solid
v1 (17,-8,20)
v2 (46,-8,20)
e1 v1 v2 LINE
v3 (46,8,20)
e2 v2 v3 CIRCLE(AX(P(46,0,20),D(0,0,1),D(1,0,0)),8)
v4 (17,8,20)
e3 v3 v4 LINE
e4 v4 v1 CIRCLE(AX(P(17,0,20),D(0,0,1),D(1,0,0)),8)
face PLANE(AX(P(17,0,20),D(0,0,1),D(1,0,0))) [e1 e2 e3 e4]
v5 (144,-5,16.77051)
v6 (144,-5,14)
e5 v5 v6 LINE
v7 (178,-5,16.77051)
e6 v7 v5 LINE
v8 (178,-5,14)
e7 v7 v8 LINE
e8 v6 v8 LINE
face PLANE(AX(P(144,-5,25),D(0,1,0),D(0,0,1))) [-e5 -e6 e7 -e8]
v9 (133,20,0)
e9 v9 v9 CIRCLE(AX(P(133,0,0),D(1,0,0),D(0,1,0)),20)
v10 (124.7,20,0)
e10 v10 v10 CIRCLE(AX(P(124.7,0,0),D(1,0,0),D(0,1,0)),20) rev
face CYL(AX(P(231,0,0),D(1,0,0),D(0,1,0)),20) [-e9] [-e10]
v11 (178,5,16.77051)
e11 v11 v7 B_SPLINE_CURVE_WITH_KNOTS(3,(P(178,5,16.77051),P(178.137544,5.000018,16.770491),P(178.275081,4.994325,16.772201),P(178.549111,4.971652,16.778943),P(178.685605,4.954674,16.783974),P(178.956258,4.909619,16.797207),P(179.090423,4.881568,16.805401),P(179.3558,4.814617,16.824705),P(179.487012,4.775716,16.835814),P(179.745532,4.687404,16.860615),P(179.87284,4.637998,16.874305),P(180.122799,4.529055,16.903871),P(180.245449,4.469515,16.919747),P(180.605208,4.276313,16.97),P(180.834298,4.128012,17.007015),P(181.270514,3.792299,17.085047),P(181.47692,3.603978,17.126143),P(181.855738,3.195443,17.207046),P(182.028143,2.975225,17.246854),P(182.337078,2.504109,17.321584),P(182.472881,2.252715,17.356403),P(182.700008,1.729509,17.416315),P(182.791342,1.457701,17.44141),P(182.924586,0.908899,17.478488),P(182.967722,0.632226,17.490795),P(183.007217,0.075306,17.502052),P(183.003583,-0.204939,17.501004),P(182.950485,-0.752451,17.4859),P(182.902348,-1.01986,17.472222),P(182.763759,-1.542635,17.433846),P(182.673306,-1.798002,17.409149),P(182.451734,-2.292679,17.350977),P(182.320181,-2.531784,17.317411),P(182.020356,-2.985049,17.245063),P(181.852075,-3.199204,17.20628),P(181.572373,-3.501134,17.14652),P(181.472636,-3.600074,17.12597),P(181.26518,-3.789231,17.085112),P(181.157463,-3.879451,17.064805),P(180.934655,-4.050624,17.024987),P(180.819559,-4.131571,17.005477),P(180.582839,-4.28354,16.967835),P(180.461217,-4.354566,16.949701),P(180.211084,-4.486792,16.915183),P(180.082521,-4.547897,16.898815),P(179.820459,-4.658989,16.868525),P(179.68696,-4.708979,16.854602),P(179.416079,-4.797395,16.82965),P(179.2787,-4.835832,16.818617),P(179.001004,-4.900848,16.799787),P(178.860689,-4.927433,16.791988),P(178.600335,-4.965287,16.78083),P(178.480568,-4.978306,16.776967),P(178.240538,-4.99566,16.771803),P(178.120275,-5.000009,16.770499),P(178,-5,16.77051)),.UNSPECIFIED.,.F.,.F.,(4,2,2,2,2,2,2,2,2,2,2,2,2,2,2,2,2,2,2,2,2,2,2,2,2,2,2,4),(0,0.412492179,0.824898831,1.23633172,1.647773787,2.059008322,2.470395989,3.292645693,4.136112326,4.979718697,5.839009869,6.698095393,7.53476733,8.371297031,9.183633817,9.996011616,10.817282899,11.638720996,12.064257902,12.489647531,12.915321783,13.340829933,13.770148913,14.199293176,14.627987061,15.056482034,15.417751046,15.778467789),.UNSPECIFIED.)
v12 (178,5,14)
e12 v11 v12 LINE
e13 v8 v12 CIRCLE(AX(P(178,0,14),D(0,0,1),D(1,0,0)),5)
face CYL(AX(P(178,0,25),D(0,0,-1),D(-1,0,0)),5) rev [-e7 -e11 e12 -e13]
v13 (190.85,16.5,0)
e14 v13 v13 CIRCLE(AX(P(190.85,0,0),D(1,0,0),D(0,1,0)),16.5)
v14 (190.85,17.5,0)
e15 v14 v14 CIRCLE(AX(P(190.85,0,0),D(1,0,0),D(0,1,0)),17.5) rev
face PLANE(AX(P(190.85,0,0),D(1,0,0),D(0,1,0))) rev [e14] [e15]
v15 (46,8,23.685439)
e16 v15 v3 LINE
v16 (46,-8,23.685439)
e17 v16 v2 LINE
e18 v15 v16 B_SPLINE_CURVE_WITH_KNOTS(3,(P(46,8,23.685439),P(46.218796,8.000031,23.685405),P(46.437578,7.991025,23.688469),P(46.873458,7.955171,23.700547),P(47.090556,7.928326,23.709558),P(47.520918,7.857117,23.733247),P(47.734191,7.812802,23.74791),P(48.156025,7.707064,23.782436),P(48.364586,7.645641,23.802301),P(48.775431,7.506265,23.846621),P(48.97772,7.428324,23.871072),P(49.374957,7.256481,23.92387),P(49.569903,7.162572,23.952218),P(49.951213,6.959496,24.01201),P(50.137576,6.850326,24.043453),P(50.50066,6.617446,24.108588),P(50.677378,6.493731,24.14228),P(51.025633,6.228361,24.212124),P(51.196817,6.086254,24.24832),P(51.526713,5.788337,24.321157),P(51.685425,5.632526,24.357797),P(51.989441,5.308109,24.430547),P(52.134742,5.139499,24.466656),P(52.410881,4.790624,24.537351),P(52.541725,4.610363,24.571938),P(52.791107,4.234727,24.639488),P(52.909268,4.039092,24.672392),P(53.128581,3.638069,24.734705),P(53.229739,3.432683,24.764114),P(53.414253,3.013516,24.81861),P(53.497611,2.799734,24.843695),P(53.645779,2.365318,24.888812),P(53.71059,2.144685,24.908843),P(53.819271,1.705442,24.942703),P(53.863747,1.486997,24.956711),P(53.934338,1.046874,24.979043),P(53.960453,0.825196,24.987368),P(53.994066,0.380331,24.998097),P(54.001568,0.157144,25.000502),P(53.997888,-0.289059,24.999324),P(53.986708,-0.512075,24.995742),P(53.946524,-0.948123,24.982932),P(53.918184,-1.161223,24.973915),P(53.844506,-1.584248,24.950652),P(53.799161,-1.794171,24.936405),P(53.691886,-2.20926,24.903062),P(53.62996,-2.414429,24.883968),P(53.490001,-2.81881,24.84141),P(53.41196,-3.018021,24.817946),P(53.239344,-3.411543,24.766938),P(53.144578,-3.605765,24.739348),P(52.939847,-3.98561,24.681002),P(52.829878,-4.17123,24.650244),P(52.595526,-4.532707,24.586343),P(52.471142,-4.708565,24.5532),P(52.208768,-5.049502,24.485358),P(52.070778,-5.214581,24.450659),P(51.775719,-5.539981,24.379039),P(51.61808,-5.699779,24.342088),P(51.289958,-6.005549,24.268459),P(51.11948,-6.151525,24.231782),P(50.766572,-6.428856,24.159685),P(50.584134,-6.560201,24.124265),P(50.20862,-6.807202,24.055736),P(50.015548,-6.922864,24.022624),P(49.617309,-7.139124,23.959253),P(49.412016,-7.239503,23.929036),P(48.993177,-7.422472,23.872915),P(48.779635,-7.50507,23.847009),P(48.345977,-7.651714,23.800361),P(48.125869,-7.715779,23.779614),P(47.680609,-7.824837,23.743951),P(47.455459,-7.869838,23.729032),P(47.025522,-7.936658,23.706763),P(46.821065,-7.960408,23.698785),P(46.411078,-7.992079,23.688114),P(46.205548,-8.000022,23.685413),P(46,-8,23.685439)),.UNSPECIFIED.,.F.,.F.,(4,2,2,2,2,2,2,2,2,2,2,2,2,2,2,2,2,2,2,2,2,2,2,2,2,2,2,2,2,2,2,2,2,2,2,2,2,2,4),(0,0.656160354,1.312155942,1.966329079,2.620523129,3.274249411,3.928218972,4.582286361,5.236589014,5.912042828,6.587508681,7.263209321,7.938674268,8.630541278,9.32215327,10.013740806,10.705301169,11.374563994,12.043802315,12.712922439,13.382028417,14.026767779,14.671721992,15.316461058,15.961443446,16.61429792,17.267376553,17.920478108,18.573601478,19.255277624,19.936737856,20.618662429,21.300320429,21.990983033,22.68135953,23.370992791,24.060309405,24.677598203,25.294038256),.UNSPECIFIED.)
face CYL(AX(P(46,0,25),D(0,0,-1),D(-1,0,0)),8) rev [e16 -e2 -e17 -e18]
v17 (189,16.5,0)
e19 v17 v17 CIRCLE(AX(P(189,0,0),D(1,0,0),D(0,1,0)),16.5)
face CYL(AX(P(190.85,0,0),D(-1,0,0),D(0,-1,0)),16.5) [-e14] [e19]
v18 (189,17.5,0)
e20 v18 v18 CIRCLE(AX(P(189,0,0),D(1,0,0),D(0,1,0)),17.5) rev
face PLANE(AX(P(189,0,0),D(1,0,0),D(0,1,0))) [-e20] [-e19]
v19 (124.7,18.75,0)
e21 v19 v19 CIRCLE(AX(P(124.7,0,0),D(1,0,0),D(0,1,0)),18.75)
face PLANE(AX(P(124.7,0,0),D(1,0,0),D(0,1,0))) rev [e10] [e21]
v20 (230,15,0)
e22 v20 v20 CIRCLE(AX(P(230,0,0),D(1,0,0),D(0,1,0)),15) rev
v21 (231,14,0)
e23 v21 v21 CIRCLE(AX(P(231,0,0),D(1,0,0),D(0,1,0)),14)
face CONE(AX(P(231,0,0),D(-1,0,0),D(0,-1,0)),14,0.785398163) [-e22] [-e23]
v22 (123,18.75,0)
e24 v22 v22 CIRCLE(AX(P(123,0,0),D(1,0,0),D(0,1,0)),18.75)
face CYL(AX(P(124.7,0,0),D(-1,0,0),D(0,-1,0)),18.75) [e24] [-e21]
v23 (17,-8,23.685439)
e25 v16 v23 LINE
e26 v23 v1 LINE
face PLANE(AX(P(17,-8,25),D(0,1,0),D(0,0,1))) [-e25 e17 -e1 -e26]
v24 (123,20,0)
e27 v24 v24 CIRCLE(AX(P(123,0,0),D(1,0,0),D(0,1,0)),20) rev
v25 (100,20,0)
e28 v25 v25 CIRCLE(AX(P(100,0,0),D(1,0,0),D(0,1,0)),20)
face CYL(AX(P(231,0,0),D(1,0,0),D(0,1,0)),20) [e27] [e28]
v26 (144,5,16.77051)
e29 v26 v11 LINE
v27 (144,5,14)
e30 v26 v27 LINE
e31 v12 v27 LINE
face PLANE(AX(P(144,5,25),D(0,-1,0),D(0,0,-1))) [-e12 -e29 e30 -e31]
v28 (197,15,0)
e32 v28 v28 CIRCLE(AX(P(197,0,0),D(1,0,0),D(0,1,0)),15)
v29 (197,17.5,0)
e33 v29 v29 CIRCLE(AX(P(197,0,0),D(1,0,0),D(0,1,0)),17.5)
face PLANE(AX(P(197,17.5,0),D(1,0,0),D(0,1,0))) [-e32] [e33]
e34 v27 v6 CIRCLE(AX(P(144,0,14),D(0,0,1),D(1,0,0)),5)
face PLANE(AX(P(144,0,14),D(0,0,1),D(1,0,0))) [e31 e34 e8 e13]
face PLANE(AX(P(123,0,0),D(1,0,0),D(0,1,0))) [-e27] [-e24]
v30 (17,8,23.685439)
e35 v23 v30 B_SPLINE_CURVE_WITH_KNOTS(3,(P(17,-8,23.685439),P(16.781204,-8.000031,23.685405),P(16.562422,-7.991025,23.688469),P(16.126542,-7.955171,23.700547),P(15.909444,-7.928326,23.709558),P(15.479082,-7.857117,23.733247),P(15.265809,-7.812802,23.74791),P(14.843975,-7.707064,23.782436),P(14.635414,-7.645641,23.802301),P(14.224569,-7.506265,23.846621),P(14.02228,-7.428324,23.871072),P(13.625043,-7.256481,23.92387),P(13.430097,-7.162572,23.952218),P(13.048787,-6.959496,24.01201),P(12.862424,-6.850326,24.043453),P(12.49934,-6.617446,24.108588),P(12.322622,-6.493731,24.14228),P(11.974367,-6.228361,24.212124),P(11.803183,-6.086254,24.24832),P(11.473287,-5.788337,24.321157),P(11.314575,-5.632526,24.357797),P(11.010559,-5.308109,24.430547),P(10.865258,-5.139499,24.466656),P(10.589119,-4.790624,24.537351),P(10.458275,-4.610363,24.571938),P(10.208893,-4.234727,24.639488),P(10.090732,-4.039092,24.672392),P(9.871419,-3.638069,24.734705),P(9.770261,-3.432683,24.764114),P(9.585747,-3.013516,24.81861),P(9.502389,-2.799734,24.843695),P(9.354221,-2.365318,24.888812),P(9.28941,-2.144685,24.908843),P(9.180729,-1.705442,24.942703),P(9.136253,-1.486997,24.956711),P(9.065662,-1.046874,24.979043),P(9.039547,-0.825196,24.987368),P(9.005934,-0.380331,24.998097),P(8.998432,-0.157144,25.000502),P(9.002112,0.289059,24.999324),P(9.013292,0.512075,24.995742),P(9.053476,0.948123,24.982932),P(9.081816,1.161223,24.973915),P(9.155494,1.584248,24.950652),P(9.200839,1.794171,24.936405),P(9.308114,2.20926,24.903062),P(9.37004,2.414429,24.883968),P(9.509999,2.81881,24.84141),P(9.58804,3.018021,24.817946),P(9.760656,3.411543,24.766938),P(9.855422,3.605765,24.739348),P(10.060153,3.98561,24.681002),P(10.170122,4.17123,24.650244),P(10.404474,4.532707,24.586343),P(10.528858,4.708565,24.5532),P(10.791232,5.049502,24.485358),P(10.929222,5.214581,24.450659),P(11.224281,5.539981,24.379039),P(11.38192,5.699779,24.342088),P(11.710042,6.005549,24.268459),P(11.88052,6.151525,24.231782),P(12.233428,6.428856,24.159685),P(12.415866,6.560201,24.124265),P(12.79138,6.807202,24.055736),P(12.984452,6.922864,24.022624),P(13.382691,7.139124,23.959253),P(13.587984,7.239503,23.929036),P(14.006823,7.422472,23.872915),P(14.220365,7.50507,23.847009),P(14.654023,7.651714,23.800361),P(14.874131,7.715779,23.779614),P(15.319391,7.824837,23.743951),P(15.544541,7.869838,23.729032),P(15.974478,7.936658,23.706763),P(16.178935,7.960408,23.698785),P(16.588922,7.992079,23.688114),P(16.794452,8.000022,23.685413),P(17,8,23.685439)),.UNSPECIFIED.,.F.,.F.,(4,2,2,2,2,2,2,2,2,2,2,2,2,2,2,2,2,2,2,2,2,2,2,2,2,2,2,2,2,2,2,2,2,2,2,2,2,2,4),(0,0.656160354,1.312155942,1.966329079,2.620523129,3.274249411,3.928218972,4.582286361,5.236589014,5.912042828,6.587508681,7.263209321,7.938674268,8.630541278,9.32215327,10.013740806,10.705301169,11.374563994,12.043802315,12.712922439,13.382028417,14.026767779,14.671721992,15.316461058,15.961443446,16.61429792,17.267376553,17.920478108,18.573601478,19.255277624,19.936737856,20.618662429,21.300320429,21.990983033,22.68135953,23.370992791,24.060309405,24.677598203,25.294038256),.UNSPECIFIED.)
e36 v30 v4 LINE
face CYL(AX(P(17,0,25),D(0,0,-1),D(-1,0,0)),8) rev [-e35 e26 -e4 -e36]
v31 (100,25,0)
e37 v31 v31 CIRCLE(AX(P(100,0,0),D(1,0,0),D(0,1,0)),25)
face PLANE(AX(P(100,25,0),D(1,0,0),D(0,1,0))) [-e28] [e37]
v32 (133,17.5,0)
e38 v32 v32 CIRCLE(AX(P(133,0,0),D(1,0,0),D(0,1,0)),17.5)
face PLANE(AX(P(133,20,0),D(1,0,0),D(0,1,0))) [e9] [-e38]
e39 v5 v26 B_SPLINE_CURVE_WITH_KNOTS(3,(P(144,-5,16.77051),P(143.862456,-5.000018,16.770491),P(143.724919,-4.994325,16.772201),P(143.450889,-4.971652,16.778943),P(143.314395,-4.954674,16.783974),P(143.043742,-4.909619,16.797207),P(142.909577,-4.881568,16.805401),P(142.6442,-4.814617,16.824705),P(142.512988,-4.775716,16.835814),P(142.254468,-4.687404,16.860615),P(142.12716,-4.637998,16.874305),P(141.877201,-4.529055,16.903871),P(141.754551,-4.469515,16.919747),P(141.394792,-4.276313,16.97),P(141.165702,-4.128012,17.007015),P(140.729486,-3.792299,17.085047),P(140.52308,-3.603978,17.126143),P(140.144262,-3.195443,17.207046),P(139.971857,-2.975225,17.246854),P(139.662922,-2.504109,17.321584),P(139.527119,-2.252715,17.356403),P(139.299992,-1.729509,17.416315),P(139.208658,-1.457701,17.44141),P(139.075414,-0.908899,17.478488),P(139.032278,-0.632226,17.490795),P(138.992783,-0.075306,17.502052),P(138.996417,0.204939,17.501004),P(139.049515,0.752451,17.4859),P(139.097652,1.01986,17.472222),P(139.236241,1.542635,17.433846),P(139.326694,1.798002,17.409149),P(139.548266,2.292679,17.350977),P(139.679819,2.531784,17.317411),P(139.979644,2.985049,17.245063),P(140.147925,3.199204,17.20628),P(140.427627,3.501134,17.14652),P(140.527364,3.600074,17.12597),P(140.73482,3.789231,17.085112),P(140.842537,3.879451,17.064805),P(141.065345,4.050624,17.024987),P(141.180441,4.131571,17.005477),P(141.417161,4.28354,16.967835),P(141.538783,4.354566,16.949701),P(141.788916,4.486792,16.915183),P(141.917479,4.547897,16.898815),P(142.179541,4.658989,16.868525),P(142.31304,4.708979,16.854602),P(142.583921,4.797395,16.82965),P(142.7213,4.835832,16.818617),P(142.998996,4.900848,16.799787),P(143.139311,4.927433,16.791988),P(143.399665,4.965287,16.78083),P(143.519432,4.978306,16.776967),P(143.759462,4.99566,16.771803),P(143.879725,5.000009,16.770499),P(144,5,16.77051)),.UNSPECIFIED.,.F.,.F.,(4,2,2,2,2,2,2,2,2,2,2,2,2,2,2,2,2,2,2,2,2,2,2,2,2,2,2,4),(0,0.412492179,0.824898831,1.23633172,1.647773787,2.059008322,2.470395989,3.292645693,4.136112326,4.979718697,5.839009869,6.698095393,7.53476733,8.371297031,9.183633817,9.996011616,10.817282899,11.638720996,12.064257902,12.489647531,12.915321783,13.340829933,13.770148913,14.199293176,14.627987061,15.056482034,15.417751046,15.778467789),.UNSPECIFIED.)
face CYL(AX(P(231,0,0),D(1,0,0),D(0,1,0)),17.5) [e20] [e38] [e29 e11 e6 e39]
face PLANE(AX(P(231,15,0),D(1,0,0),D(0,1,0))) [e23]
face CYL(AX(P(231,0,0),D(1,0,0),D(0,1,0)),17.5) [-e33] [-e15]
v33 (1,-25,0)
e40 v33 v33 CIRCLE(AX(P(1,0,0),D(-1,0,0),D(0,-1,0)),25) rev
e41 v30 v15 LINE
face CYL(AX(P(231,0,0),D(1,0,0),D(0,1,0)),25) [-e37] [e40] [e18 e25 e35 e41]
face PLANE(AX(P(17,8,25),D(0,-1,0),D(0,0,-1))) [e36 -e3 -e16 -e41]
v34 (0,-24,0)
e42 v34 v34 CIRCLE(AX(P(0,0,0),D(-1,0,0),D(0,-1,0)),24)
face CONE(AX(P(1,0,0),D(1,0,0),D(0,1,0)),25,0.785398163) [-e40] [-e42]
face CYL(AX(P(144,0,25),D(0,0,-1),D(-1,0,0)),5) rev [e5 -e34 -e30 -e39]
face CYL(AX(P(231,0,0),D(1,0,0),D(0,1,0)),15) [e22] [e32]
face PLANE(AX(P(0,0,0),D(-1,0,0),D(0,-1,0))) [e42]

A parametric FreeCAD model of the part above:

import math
import FreeCAD as App
import Part
import Sketcher
from FreeCAD import Vector
Q = App.Units.Quantity


def edges_at(feature, points):
    """Names of the edges that pass closest to the given points."""
    edges = feature.Shape.Edges
    near = lambda p: min(range(len(edges)), key=lambda i: edges[i].distToShape(Part.Vertex(*p))[0])
    return sorted({f"Edge{near(p) + 1}" for p in points})

doc = App.newDocument("Part")
body = doc.addObject("PartDesign::Body", "Body")

sketch1 = body.newObject("Sketcher::SketchObject", "Sketch")
sketch1.AttachmentSupport = (doc.getObject("XY_Plane"), [""])
sketch1.MapMode = "FlatFace"
sketch1.addGeometry([
    Part.LineSegment(Vector(0, 25, 0), Vector(0, 0, 0)),
    Part.LineSegment(Vector(0, 0, 0), Vector(231, 0, 0)),
    Part.LineSegment(Vector(231, 0, 0), Vector(231, 15, 0)),
    Part.LineSegment(Vector(231, 15, 0), Vector(197, 15, 0)),
    Part.LineSegment(Vector(197, 15, 0), Vector(197, 17.5, 0)),
    Part.LineSegment(Vector(197, 17.5, 0), Vector(133, 17.5, 0)),
    Part.LineSegment(Vector(133, 17.5, 0), Vector(133, 20, 0)),
    Part.LineSegment(Vector(133, 20, 0), Vector(100, 20, 0)),
    Part.LineSegment(Vector(100, 20, 0), Vector(100, 25, 0)),
    Part.LineSegment(Vector(100, 25, 0), Vector(0, 25, 0)),
], False)
sketch1.addConstraint([
    Sketcher.Constraint("Coincident", 0, 2, 1, 1),
    Sketcher.Constraint("Coincident", 1, 2, 2, 1),
    Sketcher.Constraint("Coincident", 2, 2, 3, 1),
    Sketcher.Constraint("Coincident", 3, 2, 4, 1),
    Sketcher.Constraint("Coincident", 4, 2, 5, 1),
    Sketcher.Constraint("Coincident", 5, 2, 6, 1),
    Sketcher.Constraint("Coincident", 6, 2, 7, 1),
    Sketcher.Constraint("Coincident", 7, 2, 8, 1),
    Sketcher.Constraint("Coincident", 8, 2, 9, 1),
    Sketcher.Constraint("Coincident", 9, 2, 0, 1),
    Sketcher.Constraint("Vertical", 0),
    Sketcher.Constraint("Horizontal", 1),
    Sketcher.Constraint("Vertical", 2),
    Sketcher.Constraint("Horizontal", 3),
    Sketcher.Constraint("Vertical", 4),
    Sketcher.Constraint("Horizontal", 5),
    Sketcher.Constraint("Vertical", 6),
    Sketcher.Constraint("Horizontal", 7),
    Sketcher.Constraint("Vertical", 8),
    Sketcher.Constraint("Horizontal", 9),
    Sketcher.Constraint("Coincident", 0, 2, -1, 1),
    Sketcher.Constraint("Equal", 4, 6),
    Sketcher.Constraint("DistanceX", 1, 1, 1, 2, Q("231 mm")),
    Sketcher.Constraint("DistanceX", 3, 2, 3, 1, Q("34 mm")),
    Sketcher.Constraint("DistanceX", 5, 2, 5, 1, Q("64 mm")),
    Sketcher.Constraint("DistanceX", 7, 2, 7, 1, Q("33 mm")),
    Sketcher.Constraint("DistanceY", 0, 2, 0, 1, Q("25 mm")),
    Sketcher.Constraint("DistanceY", 2, 1, 2, 2, Q("15 mm")),
    Sketcher.Constraint("DistanceY", 8, 1, 8, 2, Q("5 mm")),
])
revolution = body.newObject("PartDesign::Revolution", "Revolution")
revolution.Profile = sketch1
revolution.ReferenceAxis = (sketch1, ["H_Axis"])
revolution.Angle = 360
doc.recompute()

chamfer = body.newObject("PartDesign::Chamfer", "Chamfer")
chamfer.Base = (revolution, edges_at(revolution, [(0, -25, 0), (231, -15, 0)]))
chamfer.Size = 1

sketch2 = body.newObject("Sketcher::SketchObject", "Sketch001")
sketch2.AttachmentSupport = (doc.getObject("YZ_Plane"), [""])
sketch2.MapMode = "FlatFace"
sketch2.AttachmentOffset = App.Placement(Vector(0, 0, 189), App.Rotation())
sketch2.addGeometry([
    Part.LineSegment(Vector(50.158, 50.158, 0), Vector(-50.158, 50.158, 0)),
    Part.LineSegment(Vector(-50.158, 50.158, 0), Vector(-50.158, -50.158, 0)),
    Part.LineSegment(Vector(-50.158, -50.158, 0), Vector(50.158, -50.158, 0)),
    Part.LineSegment(Vector(50.158, -50.158, 0), Vector(50.158, 50.158, 0)),
    Part.Circle(Vector(0, 0, 0), Vector(0, 0, 1), 16.5),
], False)
sketch2.addConstraint([
    Sketcher.Constraint("Coincident", 0, 2, 1, 1),
    Sketcher.Constraint("Coincident", 1, 2, 2, 1),
    Sketcher.Constraint("Coincident", 2, 2, 3, 1),
    Sketcher.Constraint("Coincident", 3, 2, 0, 1),
    Sketcher.Constraint("Horizontal", 0),
    Sketcher.Constraint("Vertical", 1),
    Sketcher.Constraint("Horizontal", 2),
    Sketcher.Constraint("Vertical", 3),
    Sketcher.Constraint("Coincident", 4, 3, -1, 1),
    Sketcher.Constraint("Symmetric", 0, 2, 2, 2, -1, 1),
    Sketcher.Constraint("Equal", 2, 1),
    Sketcher.Constraint("Diameter", 4, Q("33 mm")),
    Sketcher.Constraint("DistanceX", 0, 2, 0, 1, Q("100.316 mm")),
])
pocket1 = body.newObject("PartDesign::Pocket", "Pocket")
pocket1.Profile = sketch2
pocket1.Length = 1.85
pocket1.Reversed = True

sketch3 = body.newObject("Sketcher::SketchObject", "Sketch002")
sketch3.AttachmentSupport = (doc.getObject("YZ_Plane"), [""])
sketch3.MapMode = "FlatFace"
sketch3.AttachmentOffset = App.Placement(Vector(0, 0, 123), App.Rotation())
sketch3.addGeometry([
    Part.LineSegment(Vector(50.158, 50.158, 0), Vector(-50.158, 50.158, 0)),
    Part.LineSegment(Vector(-50.158, 50.158, 0), Vector(-50.158, -50.158, 0)),
    Part.LineSegment(Vector(-50.158, -50.158, 0), Vector(50.158, -50.158, 0)),
    Part.LineSegment(Vector(50.158, -50.158, 0), Vector(50.158, 50.158, 0)),
    Part.Circle(Vector(0, 0, 0), Vector(0, 0, 1), 18.75),
], False)
sketch3.addConstraint([
    Sketcher.Constraint("Coincident", 0, 2, 1, 1),
    Sketcher.Constraint("Coincident", 1, 2, 2, 1),
    Sketcher.Constraint("Coincident", 2, 2, 3, 1),
    Sketcher.Constraint("Coincident", 3, 2, 0, 1),
    Sketcher.Constraint("Horizontal", 0),
    Sketcher.Constraint("Vertical", 1),
    Sketcher.Constraint("Horizontal", 2),
    Sketcher.Constraint("Vertical", 3),
    Sketcher.Constraint("Coincident", 4, 3, -1, 1),
    Sketcher.Constraint("Symmetric", 0, 2, 2, 2, -1, 1),
    Sketcher.Constraint("Equal", 2, 1),
    Sketcher.Constraint("Diameter", 4, Q("37.5 mm")),
    Sketcher.Constraint("DistanceX", 0, 2, 0, 1, Q("100.316 mm")),
])
pocket2 = body.newObject("PartDesign::Pocket", "Pocket001")
pocket2.Profile = sketch3
pocket2.Length = 1.7
pocket2.Reversed = True

sketch4 = body.newObject("Sketcher::SketchObject", "Sketch003")
sketch4.AttachmentSupport = (doc.getObject("XY_Plane"), [""])
sketch4.MapMode = "FlatFace"
sketch4.AttachmentOffset = App.Placement(Vector(0, 0, 20), App.Rotation())
sketch4.addGeometry([
    Part.LineSegment(Vector(46, 8, 0), Vector(17, 8, 0)),
    Part.ArcOfCircle(Part.Circle(Vector(17, 0, 0), Vector(0, 0, 1), 8), math.radians(90), math.radians(270)),
    Part.LineSegment(Vector(17, -8, 0), Vector(46, -8, 0)),
    Part.ArcOfCircle(Part.Circle(Vector(46, 0, 0), Vector(0, 0, 1), 8), math.radians(-90), math.radians(90)),
], False)
sketch4.addConstraint([
    Sketcher.Constraint("Tangent", 0, 2, 1, 1),
    Sketcher.Constraint("Tangent", 1, 2, 2, 1),
    Sketcher.Constraint("Tangent", 2, 2, 3, 1),
    Sketcher.Constraint("Tangent", 3, 2, 0, 1),
    Sketcher.Constraint("Horizontal", 0),
    Sketcher.Constraint("Horizontal", 2),
    Sketcher.Constraint("PointOnObject", 1, 3, -1),
    Sketcher.Constraint("Radius", 1, Q("8 mm")),
    Sketcher.Constraint("DistanceX", 0, 2, 0, 1, Q("29 mm")),
    Sketcher.Constraint("DistanceX", -1, 1, 1, 3, Q("17 mm")),
])
pocket3 = body.newObject("PartDesign::Pocket", "Pocket002")
pocket3.Profile = sketch4
pocket3.Type = "ThroughAll"
pocket3.Reversed = True

sketch5 = body.newObject("Sketcher::SketchObject", "Sketch004")
sketch5.AttachmentSupport = (doc.getObject("XY_Plane"), [""])
sketch5.MapMode = "FlatFace"
sketch5.AttachmentOffset = App.Placement(Vector(0, 0, 14), App.Rotation())
sketch5.addGeometry([
    Part.LineSegment(Vector(178, 5, 0), Vector(144, 5, 0)),
    Part.ArcOfCircle(Part.Circle(Vector(144, 0, 0), Vector(0, 0, 1), 5), math.radians(90), math.radians(270)),
    Part.LineSegment(Vector(144, -5, 0), Vector(178, -5, 0)),
    Part.ArcOfCircle(Part.Circle(Vector(178, 0, 0), Vector(0, 0, 1), 5), math.radians(-90), math.radians(90)),
], False)
sketch5.addConstraint([
    Sketcher.Constraint("Tangent", 0, 2, 1, 1),
    Sketcher.Constraint("Tangent", 1, 2, 2, 1),
    Sketcher.Constraint("Tangent", 2, 2, 3, 1),
    Sketcher.Constraint("Tangent", 3, 2, 0, 1),
    Sketcher.Constraint("Horizontal", 0),
    Sketcher.Constraint("Horizontal", 2),
    Sketcher.Constraint("PointOnObject", 1, 3, -1),
    Sketcher.Constraint("Radius", 1, Q("5 mm")),
    Sketcher.Constraint("DistanceX", 0, 2, 0, 1, Q("34 mm")),
    Sketcher.Constraint("DistanceX", -1, 1, 1, 3, Q("144 mm")),
])
pocket4 = body.newObject("PartDesign::Pocket", "Pocket003")
pocket4.Profile = sketch5
pocket4.Type = "ThroughAll"
pocket4.Reversed = True

doc.recompute()
